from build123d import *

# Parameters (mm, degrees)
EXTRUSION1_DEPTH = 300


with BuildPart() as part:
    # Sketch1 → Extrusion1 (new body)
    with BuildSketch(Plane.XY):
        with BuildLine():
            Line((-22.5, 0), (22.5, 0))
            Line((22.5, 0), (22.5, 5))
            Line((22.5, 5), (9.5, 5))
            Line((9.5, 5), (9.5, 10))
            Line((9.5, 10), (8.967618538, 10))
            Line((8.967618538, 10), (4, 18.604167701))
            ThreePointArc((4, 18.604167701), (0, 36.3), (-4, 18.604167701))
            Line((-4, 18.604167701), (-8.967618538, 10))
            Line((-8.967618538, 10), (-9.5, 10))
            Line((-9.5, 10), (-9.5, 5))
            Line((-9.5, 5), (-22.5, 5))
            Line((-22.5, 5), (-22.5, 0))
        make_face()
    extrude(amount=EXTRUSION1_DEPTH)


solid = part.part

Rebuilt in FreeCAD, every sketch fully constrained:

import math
import FreeCAD as App
import Part
import Sketcher
from FreeCAD import Vector
Q = App.Units.Quantity

doc = App.newDocument("Part")
body = doc.addObject("PartDesign::Body", "Body")

# Sketch on XY plane
sketch1 = doc.addObject("Sketcher::SketchObject", "Sketch")
body.addObject(sketch1)
sketch1.AttachmentSupport = (doc.XY_Plane, [""])
sketch1.MapMode = "FlatFace"
sketch1.addGeometry([
    Part.LineSegment(Vector(-22.5, 0, 0), Vector(22.5, 0, 0)),  # 0
    Part.LineSegment(Vector(22.5, 0, 0), Vector(22.5, 5, 0)),  # 1
    Part.LineSegment(Vector(22.5, 5, 0), Vector(9.5, 5, 0)),  # 2
    Part.LineSegment(Vector(9.5, 5, 0), Vector(9.5, 10, 0)),  # 3
    Part.LineSegment(Vector(9.5, 10, 0), Vector(8.967619, 10, 0)),  # 4
    Part.LineSegment(Vector(8.967619, 10, 0), Vector(4, 18.604168, 0)),  # 5
    Part.ArcOfCircle(Part.Circle(Vector(0, 27, 0), Vector(0, 0, 1), 9.3), math.radians(-64.525616), math.radians(244.525616)),  # 6
    Part.LineSegment(Vector(-4, 18.604168, 0), Vector(-8.967619, 10, 0)),  # 7
    Part.LineSegment(Vector(-8.967619, 10, 0), Vector(-9.5, 10, 0)),  # 8
    Part.LineSegment(Vector(-9.5, 10, 0), Vector(-9.5, 5, 0)),  # 9
    Part.LineSegment(Vector(-9.5, 5, 0), Vector(-22.5, 5, 0)),  # 10
    Part.LineSegment(Vector(-22.5, 5, 0), Vector(-22.5, 0, 0)),  # 11
], False)
sketch1.addConstraint([
    Sketcher.Constraint("Coincident", 0, 2, 1, 1),
    Sketcher.Constraint("Coincident", 1, 2, 2, 1),
    Sketcher.Constraint("Coincident", 2, 2, 3, 1),
    Sketcher.Constraint("Coincident", 3, 2, 4, 1),
    Sketcher.Constraint("Coincident", 4, 2, 5, 1),
    Sketcher.Constraint("Coincident", 5, 2, 6, 1),
    Sketcher.Constraint("Coincident", 6, 2, 7, 1),
    Sketcher.Constraint("Coincident", 7, 2, 8, 1),
    Sketcher.Constraint("Coincident", 8, 2, 9, 1),
    Sketcher.Constraint("Coincident", 9, 2, 10, 1),
    Sketcher.Constraint("Coincident", 10, 2, 11, 1),
    Sketcher.Constraint("Coincident", 11, 2, 0, 1),
    Sketcher.Constraint("Horizontal", 0),
    Sketcher.Constraint("Vertical", 1),
    Sketcher.Constraint("Horizontal", 2),
    Sketcher.Constraint("Vertical", 3),
    Sketcher.Constraint("Horizontal", 4),
    Sketcher.Constraint("Horizontal", 8),
    Sketcher.Constraint("Vertical", 9),
    Sketcher.Constraint("Horizontal", 10),
    Sketcher.Constraint("Vertical", 11),
    Sketcher.Constraint("Symmetric", 0, 2, 11, 2, -1, 1),
    Sketcher.Constraint("Symmetric", 5, 2, 6, 2, -2),
    Sketcher.Constraint("Symmetric", 4, 2, 7, 2, -2),
    Sketcher.Constraint("Symmetric", 2, 2, 9, 2, -2),
    Sketcher.Constraint("Equal", 1, 3),
    Sketcher.Constraint("Radius", 6, 9.3),
    Sketcher.Constraint("DistanceX", 0, 1, 0, 2, 45.0),
    Sketcher.Constraint("DistanceX", 2, 2, 2, 1, 13.0),
    Sketcher.Constraint("DistanceY", 1, 1, 1, 2, 5.0),
    Sketcher.Constraint("Angle", 5, Q("120 deg")),
    Sketcher.Constraint("DistanceY", -1, 1, 6, 3, 27.0),
    Sketcher.Constraint("DistanceX", -1, 1, 5, 2, 4.0),
])
pad1 = doc.addObject("PartDesign::Pad", "Pad")
body.addObject(pad1)
pad1.Profile = sketch1
pad1.Length = 300

doc.recompute()
